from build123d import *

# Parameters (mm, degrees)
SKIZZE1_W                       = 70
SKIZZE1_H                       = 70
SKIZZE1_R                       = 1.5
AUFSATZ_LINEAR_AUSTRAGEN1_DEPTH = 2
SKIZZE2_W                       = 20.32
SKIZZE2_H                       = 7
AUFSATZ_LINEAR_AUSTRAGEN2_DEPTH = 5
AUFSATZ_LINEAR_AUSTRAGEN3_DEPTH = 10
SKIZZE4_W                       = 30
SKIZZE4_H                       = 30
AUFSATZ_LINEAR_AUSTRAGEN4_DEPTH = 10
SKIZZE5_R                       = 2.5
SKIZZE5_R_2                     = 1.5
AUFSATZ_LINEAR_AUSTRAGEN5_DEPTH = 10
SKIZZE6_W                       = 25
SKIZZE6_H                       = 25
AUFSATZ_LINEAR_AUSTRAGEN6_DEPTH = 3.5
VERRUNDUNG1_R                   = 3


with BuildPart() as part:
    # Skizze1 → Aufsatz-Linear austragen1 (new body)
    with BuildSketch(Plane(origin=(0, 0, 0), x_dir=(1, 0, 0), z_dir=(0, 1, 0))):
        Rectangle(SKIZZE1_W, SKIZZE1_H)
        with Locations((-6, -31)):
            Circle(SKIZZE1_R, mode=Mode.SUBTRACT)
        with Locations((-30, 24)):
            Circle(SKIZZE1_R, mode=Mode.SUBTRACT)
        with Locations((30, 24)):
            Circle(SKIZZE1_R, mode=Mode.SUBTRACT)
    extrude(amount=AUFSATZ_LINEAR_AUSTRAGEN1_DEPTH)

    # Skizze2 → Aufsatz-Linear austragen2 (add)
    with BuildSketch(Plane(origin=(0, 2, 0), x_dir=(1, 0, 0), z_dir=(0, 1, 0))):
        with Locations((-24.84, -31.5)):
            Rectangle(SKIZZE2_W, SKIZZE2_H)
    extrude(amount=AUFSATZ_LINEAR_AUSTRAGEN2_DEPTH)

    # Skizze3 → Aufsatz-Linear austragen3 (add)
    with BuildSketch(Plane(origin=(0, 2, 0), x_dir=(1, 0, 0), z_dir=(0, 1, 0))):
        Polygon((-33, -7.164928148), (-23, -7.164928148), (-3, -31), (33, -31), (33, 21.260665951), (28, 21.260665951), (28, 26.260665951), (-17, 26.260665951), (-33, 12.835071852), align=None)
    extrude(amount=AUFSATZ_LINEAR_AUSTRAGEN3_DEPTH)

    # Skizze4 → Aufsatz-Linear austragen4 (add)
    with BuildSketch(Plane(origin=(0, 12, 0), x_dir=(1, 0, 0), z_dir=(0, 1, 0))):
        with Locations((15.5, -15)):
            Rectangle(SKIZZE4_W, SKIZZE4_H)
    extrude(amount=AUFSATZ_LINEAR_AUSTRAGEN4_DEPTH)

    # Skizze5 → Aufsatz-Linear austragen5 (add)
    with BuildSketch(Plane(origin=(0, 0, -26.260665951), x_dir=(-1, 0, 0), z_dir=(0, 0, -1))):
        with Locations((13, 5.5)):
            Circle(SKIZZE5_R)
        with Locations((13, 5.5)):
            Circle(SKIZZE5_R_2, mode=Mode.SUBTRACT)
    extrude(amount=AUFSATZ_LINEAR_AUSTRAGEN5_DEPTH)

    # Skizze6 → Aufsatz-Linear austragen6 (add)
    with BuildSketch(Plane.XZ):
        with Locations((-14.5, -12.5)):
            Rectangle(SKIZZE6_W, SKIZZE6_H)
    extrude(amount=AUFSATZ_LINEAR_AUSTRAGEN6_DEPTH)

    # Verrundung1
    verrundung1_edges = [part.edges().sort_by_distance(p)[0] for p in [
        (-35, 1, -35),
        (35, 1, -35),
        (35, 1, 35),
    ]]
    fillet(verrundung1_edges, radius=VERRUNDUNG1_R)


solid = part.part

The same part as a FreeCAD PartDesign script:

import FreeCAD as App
import Part
import Sketcher

V = App.Vector
Q = App.Units.Quantity


def edges_at(feature, points):
    """Names of the edges that pass closest to the given points."""
    edges = feature.Shape.Edges
    near = lambda p: min(range(len(edges)), key=lambda i: edges[i].distToShape(Part.Vertex(*p))[0])
    return sorted({f"Edge{near(p) + 1}" for p in points})

doc = App.newDocument("Part")
body = doc.addObject("PartDesign::Body", "Body")

# Sketch on XZ plane
sketch1 = body.newObject("Sketcher::SketchObject", "Sketch")
sketch1.AttachmentSupport = (doc.getObject("XZ_Plane"), [""])
sketch1.MapMode = "FlatFace"
sketch1.addGeometry(Part.LineSegment(V(-35, -35, 0), V(-35, 35, 0)), False)
sketch1.addGeometry(Part.LineSegment(V(-35, 35, 0), V(35, 35, 0)), False)
sketch1.addGeometry(Part.LineSegment(V(35, 35, 0), V(35, -35, 0)), False)
sketch1.addGeometry(Part.LineSegment(V(35, -35, 0), V(-35, -35, 0)), False)
sketch1.addGeometry(Part.Circle(V(-6, 31, 0), V(0, 0, 1), 1.5), False)
sketch1.addGeometry(Part.Circle(V(-30, -24, 0), V(0, 0, 1), 1.5), False)
sketch1.addGeometry(Part.Circle(V(30, -24, 0), V(0, 0, 1), 1.5), False)
sketch1.addConstraint(Sketcher.Constraint("Coincident", 0, 2, 1, 1))
sketch1.addConstraint(Sketcher.Constraint("Coincident", 1, 2, 2, 1))
sketch1.addConstraint(Sketcher.Constraint("Coincident", 2, 2, 3, 1))
sketch1.addConstraint(Sketcher.Constraint("Coincident", 3, 2, 0, 1))
sketch1.addConstraint(Sketcher.Constraint("Vertical", 0))
sketch1.addConstraint(Sketcher.Constraint("Horizontal", 1))
sketch1.addConstraint(Sketcher.Constraint("Vertical", 2))
sketch1.addConstraint(Sketcher.Constraint("Horizontal", 3))
sketch1.addConstraint(Sketcher.Constraint("Equal", 4, 5))
sketch1.addConstraint(Sketcher.Constraint("Equal", 5, 6))
sketch1.addConstraint(Sketcher.Constraint("Symmetric", 0, 2, 2, 2, -1, 1))
sketch1.addConstraint(Sketcher.Constraint("Symmetric", 5, 3, 6, 3, -2))
sketch1.addConstraint(Sketcher.Constraint("Equal", 3, 0))
sketch1.addConstraint(Sketcher.Constraint("Diameter", 4, 3.0))
sketch1.addConstraint(Sketcher.Constraint("DistanceX", 1, 1, 1, 2, 70.0))
sketch1.addConstraint(Sketcher.Constraint("DistanceX", 4, 3, -1, 1, 6.0))
sketch1.addConstraint(Sketcher.Constraint("DistanceY", -1, 1, 4, 3, 31.0))
sketch1.addConstraint(Sketcher.Constraint("DistanceX", 5, 3, -1, 1, 30.0))
sketch1.addConstraint(Sketcher.Constraint("DistanceY", 5, 3, -1, 1, 24.0))
pad1 = body.newObject("PartDesign::Pad", "Pad")
pad1.Profile = sketch1
pad1.Length = 2
pad1.Reversed = True

# Sketch on XZ plane
sketch2 = body.newObject("Sketcher::SketchObject", "Sketch001")
sketch2.AttachmentSupport = (doc.getObject("XZ_Plane"), [""])
sketch2.MapMode = "FlatFace"
sketch2.AttachmentOffset = App.Placement(V(0, 0, -2), App.Rotation())
sketch2.addGeometry(Part.LineSegment(V(-35, 28, 0), V(-35, 35, 0)), False)
sketch2.addGeometry(Part.LineSegment(V(-35, 35, 0), V(-15, 35, 0)), False)
sketch2.addGeometry(Part.LineSegment(V(-15, 35, 0), V(-15, 28, 0)), False)
sketch2.addGeometry(Part.LineSegment(V(-15, 28, 0), V(-35, 28, 0)), False)
sketch2.addConstraint(Sketcher.Constraint("Coincident", 0, 2, 1, 1))
sketch2.addConstraint(Sketcher.Constraint("Coincident", 1, 2, 2, 1))
sketch2.addConstraint(Sketcher.Constraint("Coincident", 2, 2, 3, 1))
sketch2.addConstraint(Sketcher.Constraint("Coincident", 3, 2, 0, 1))
sketch2.addConstraint(Sketcher.Constraint("Vertical", 0))
sketch2.addConstraint(Sketcher.Constraint("Horizontal", 1))
sketch2.addConstraint(Sketcher.Constraint("Vertical", 2))
sketch2.addConstraint(Sketcher.Constraint("Horizontal", 3))
sketch2.addConstraint(Sketcher.Constraint("DistanceY", 0, 1, 0, 2, 7.0))
sketch2.addConstraint(Sketcher.Constraint("DistanceX", 0, 2, -1, 1, 35.0))
sketch2.addConstraint(Sketcher.Constraint("DistanceY", -1, 1, 0, 2, 35.0))
sketch2.addConstraint(Sketcher.Constraint("DistanceX", 1, 1, 1, 2, 20.32))
pad2 = body.newObject("PartDesign::Pad", "Pad001")
pad2.Profile = sketch2
pad2.Length = 5
pad2.Reversed = True

# Sketch on XZ plane
sketch3 = body.newObject("Sketcher::SketchObject", "Sketch002")
sketch3.AttachmentSupport = (doc.getObject("XZ_Plane"), [""])
sketch3.MapMode = "FlatFace"
sketch3.AttachmentOffset = App.Placement(V(0, 0, -2), App.Rotation())
sketch3.addGeometry(Part.LineSegment(V(-33, 7, 0), V(-23, 7, 0)), False)
sketch3.addGeometry(Part.LineSegment(V(-23, 7, 0), V(-3, 31, 0)), False)
sketch3.addGeometry(Part.LineSegment(V(-3, 31, 0), V(33, 31, 0)), False)
sketch3.addGeometry(Part.LineSegment(V(33, 31, 0), V(33, -21, 0)), False)
sketch3.addGeometry(Part.LineSegment(V(33, -21, 0), V(28, -21, 0)), False)
sketch3.addGeometry(Part.LineSegment(V(28, -21, 0), V(28, -26, 0)), False)
sketch3.addGeometry(Part.LineSegment(V(28, -26, 0), V(-17, -26, 0)), False)
sketch3.addGeometry(Part.LineSegment(V(-17, -26, 0), V(-33, -13, 0)), False)
sketch3.addGeometry(Part.LineSegment(V(-33, -13, 0), V(-33, 7, 0)), False)
sketch3.addConstraint(Sketcher.Constraint("Coincident", 0, 2, 1, 1))
sketch3.addConstraint(Sketcher.Constraint("Coincident", 1, 2, 2, 1))
sketch3.addConstraint(Sketcher.Constraint("Coincident", 2, 2, 3, 1))
sketch3.addConstraint(Sketcher.Constraint("Coincident", 3, 2, 4, 1))
sketch3.addConstraint(Sketcher.Constraint("Coincident", 4, 2, 5, 1))
sketch3.addConstraint(Sketcher.Constraint("Coincident", 5, 2, 6, 1))
sketch3.addConstraint(Sketcher.Constraint("Coincident", 6, 2, 7, 1))
sketch3.addConstraint(Sketcher.Constraint("Coincident", 7, 2, 8, 1))
sketch3.addConstraint(Sketcher.Constraint("Coincident", 8, 2, 0, 1))
sketch3.addConstraint(Sketcher.Constraint("Horizontal", 0))
sketch3.addConstraint(Sketcher.Constraint("Horizontal", 2))
sketch3.addConstraint(Sketcher.Constraint("Vertical", 3))
sketch3.addConstraint(Sketcher.Constraint("Horizontal", 4))
sketch3.addConstraint(Sketcher.Constraint("Vertical", 5))
sketch3.addConstraint(Sketcher.Constraint("Horizontal", 6))
sketch3.addConstraint(Sketcher.Constraint("Vertical", 8))
sketch3.addConstraint(Sketcher.Constraint("Perpendicular", 1, 7))
sketch3.addConstraint(Sketcher.Constraint("Equal", 4, 5))
sketch3.addConstraint(Sketcher.Constraint("DistanceX", 0, 1, 0, 2, 10.0))
sketch3.addConstraint(Sketcher.Constraint("DistanceX", 2, 1, 2, 2, 36.0))
sketch3.addConstraint(Sketcher.Constraint("DistanceX", 4, 2, 4, 1, 5.0))
sketch3.addConstraint(Sketcher.Constraint("DistanceX", 6, 2, 6, 1, 45.0))
sketch3.addConstraint(Sketcher.Constraint("DistanceY", 8, 1, 8, 2, 20.0))
sketch3.addConstraint(Sketcher.Constraint("Angle", 1, Q("50 deg")))
sketch3.addConstraint(Sketcher.Constraint("DistanceX", 0, 2, -1, 1, 23.0))
sketch3.addConstraint(Sketcher.Constraint("DistanceX", 1, 2, -1, 1, 3.0))
sketch3.addConstraint(Sketcher.Constraint("DistanceY", -1, 1, 1, 2, 31.0))
pad3 = body.newObject("PartDesign::Pad", "Pad002")
pad3.Profile = sketch3
pad3.Length = 10
pad3.Reversed = True

# Sketch on XZ plane
sketch4 = body.newObject("Sketcher::SketchObject", "Sketch003")
sketch4.AttachmentSupport = (doc.getObject("XZ_Plane"), [""])
sketch4.MapMode = "FlatFace"
sketch4.AttachmentOffset = App.Placement(V(0, 0, -12), App.Rotation())
sketch4.addGeometry(Part.LineSegment(V(0, 0, 0), V(0, 30, 0)), False)
sketch4.addGeometry(Part.LineSegment(V(0, 30, 0), V(30, 30, 0)), False)
sketch4.addGeometry(Part.LineSegment(V(30, 30, 0), V(30, 0, 0)), False)
sketch4.addGeometry(Part.LineSegment(V(30, 0, 0), V(0, 0, 0)), False)
sketch4.addConstraint(Sketcher.Constraint("Coincident", 0, 2, 1, 1))
sketch4.addConstraint(Sketcher.Constraint("Coincident", 1, 2, 2, 1))
sketch4.addConstraint(Sketcher.Constraint("Coincident", 2, 2, 3, 1))
sketch4.addConstraint(Sketcher.Constraint("Coincident", 3, 2, 0, 1))
sketch4.addConstraint(Sketcher.Constraint("Vertical", 0))
sketch4.addConstraint(Sketcher.Constraint("Horizontal", 1))
sketch4.addConstraint(Sketcher.Constraint("Vertical", 2))
sketch4.addConstraint(Sketcher.Constraint("Horizontal", 3))
sketch4.addConstraint(Sketcher.Constraint("PointOnObject", 2, 2, -1))
sketch4.addConstraint(Sketcher.Constraint("Equal", 3, 0))
sketch4.addConstraint(Sketcher.Constraint("DistanceX", 1, 1, 1, 2, 30.0))
sketch4.addConstraint(Sketcher.Constraint("DistanceX", -1, 1, 0, 2, 0.5))
pad4 = body.newObject("PartDesign::Pad", "Pad003")
pad4.Profile = sketch4
pad4.Length = 10
pad4.Reversed = True

# Sketch on XY plane
sketch5 = body.newObject("Sketcher::SketchObject", "Sketch004")
sketch5.AttachmentSupport = (doc.getObject("XY_Plane"), [""])
sketch5.MapMode = "FlatFace"
sketch5.AttachmentOffset = App.Placement(V(0, 0, -26.260666), App.Rotation())
sketch5.addGeometry(Part.Circle(V(-13, 5.5, 0), V(0, 0, 1), 2.5), False)
sketch5.addGeometry(Part.Circle(V(-13, 5.5, 0), V(0, 0, 1), 1.5), False)
sketch5.addConstraint(Sketcher.Constraint("Coincident", 1, 3, 0, 3))
sketch5.addConstraint(Sketcher.Constraint("Diameter", 0, 5.0))
sketch5.addConstraint(Sketcher.Constraint("Diameter", 1, 3.0))
sketch5.addConstraint(Sketcher.Constraint("DistanceX", 0, 3, -1, 1, 13.0))
sketch5.addConstraint(Sketcher.Constraint("DistanceY", -1, 1, 0, 3, 5.5))
pad5 = body.newObject("PartDesign::Pad", "Pad004")
pad5.Profile = sketch5
pad5.Length = 10
pad5.Reversed = True

# Sketch on XZ plane
sketch6 = body.newObject("Sketcher::SketchObject", "Sketch005")
sketch6.AttachmentSupport = (doc.getObject("XZ_Plane"), [""])
sketch6.MapMode = "FlatFace"
sketch6.addGeometry(Part.LineSegment(V(-27, 0, 0), V(-27, -25, 0)), False)
sketch6.addGeometry(Part.LineSegment(V(-27, -25, 0), V(-2, -25, 0)), False)
sketch6.addGeometry(Part.LineSegment(V(-2, -25, 0), V(-2, 0, 0)), False)
sketch6.addGeometry(Part.LineSegment(V(-2, 0, 0), V(-27, 0, 0)), False)
sketch6.addConstraint(Sketcher.Constraint("Coincident", 0, 2, 1, 1))
sketch6.addConstraint(Sketcher.Constraint("Coincident", 1, 2, 2, 1))
sketch6.addConstraint(Sketcher.Constraint("Coincident", 2, 2, 3, 1))
sketch6.addConstraint(Sketcher.Constraint("Coincident", 3, 2, 0, 1))
sketch6.addConstraint(Sketcher.Constraint("Vertical", 0))
sketch6.addConstraint(Sketcher.Constraint("Horizontal", 1))
sketch6.addConstraint(Sketcher.Constraint("Vertical", 2))
sketch6.addConstraint(Sketcher.Constraint("Horizontal", 3))
sketch6.addConstraint(Sketcher.Constraint("PointOnObject", 2, 2, -1))
sketch6.addConstraint(Sketcher.Constraint("Equal", 3, 0))
sketch6.addConstraint(Sketcher.Constraint("DistanceX", 1, 1, 1, 2, 25.0))
sketch6.addConstraint(Sketcher.Constraint("DistanceX", 0, 2, -1, 1, 27.0))
pad6 = body.newObject("PartDesign::Pad", "Pad005")
pad6.Profile = sketch6
pad6.Length = 3.5
doc.recompute()

fillet = body.newObject("PartDesign::Fillet", "Fillet")
fillet.Base = (pad6, edges_at(pad6, [(-35, 1, -35), (35, 1, -35), (35, 1, 35)]))
fillet.Radius = 3

doc.recompute()
